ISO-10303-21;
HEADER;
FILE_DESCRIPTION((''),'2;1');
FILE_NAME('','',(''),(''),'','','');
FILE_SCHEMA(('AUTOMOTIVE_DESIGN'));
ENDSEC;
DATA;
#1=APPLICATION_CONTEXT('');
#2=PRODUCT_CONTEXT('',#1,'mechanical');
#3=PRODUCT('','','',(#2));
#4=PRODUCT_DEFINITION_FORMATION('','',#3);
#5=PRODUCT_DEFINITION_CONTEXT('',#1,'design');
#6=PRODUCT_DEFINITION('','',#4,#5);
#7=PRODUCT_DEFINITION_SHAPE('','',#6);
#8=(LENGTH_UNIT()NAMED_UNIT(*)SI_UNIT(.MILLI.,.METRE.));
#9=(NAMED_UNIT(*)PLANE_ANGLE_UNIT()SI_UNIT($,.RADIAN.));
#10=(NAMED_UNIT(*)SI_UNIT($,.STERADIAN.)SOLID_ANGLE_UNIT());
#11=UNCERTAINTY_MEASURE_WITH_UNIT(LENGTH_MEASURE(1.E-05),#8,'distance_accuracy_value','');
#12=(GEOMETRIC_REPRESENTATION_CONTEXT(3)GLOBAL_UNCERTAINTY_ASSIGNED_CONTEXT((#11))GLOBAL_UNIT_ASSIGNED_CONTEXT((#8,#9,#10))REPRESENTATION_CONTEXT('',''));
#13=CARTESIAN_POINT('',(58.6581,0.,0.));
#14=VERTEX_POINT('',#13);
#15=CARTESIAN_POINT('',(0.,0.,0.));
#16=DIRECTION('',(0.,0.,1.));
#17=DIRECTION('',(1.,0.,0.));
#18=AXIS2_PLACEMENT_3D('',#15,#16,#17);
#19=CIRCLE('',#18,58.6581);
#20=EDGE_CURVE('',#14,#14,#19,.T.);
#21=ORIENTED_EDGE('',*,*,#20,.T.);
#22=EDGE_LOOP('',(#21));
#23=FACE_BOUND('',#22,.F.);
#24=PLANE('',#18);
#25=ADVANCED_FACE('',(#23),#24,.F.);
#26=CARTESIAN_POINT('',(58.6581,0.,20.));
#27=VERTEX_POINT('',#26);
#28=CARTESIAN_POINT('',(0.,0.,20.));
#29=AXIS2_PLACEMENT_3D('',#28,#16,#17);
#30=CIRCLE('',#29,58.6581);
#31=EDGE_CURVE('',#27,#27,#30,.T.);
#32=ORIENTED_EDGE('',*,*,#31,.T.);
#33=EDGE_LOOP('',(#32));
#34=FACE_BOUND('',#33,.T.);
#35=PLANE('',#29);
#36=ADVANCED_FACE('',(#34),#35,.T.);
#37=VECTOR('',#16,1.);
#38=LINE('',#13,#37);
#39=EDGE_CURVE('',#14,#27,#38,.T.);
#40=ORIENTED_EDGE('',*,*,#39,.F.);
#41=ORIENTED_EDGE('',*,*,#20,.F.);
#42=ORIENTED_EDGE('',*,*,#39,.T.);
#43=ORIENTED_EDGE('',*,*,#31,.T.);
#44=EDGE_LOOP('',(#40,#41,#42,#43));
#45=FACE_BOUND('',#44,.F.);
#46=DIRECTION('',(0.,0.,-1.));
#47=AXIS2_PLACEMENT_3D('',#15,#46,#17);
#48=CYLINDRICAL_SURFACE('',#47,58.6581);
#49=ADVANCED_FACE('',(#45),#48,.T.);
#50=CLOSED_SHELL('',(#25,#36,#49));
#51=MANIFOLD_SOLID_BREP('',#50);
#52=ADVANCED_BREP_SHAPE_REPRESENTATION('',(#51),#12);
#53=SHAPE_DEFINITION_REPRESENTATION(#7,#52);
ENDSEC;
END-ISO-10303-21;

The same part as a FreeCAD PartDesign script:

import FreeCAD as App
import Part
import Sketcher

doc = App.newDocument("Part")
body = doc.addObject("PartDesign::Body", "Body")

sketch1 = body.newObject("Sketcher::SketchObject", "Sketch")
sketch1.AttachmentSupport = (doc.getObject("XY_Plane"), [""])
sketch1.MapMode = "FlatFace"
sketch1.addGeometry(Part.Circle(App.Vector(0, 0, 0), App.Vector(0, 0, 1), 59), False)
sketch1.addConstraint(Sketcher.Constraint("Coincident", 0, 3, -1, 1))
sketch1.addConstraint(Sketcher.Constraint("Diameter", 0, 117.3162))
pad1 = body.newObject("PartDesign::Pad", "Pad")
pad1.Profile = sketch1
pad1.Length = 20

doc.recompute()
